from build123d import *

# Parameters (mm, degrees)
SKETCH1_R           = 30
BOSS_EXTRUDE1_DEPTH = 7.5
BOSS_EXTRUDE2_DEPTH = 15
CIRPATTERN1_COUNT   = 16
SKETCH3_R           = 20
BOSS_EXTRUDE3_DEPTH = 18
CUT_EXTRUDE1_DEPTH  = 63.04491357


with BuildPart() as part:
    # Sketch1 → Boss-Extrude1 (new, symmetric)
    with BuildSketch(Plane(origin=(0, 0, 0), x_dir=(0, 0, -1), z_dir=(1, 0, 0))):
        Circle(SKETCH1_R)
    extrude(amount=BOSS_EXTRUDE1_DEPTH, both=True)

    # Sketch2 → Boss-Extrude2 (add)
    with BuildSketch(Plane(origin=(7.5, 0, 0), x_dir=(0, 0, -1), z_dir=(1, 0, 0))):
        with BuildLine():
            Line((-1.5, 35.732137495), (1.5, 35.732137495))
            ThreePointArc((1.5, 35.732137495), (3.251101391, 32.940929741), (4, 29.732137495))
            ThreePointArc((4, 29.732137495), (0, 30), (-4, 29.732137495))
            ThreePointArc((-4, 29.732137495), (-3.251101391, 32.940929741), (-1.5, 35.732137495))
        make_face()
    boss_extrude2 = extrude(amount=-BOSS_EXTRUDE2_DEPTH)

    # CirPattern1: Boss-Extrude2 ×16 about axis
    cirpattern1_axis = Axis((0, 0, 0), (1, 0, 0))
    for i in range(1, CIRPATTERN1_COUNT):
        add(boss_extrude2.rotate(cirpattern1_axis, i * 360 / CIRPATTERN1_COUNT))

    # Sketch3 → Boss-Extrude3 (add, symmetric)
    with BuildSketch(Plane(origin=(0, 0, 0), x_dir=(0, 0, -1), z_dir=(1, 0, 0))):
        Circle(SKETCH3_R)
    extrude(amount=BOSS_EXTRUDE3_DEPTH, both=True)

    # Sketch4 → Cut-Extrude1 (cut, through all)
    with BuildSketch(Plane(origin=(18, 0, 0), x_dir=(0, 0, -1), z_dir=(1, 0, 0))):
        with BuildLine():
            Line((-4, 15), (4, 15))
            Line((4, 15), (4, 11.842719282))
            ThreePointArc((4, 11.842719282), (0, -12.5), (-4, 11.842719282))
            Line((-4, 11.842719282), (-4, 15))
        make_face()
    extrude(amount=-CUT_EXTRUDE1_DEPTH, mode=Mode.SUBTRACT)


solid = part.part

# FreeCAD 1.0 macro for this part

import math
import FreeCAD as App
import Part
import Sketcher
Q = App.Units.Quantity

doc = App.newDocument("Part")
body = doc.addObject("PartDesign::Body", "Body")

sketch1 = doc.addObject("Sketcher::SketchObject", "Sketch")
body.addObject(sketch1)
sketch1.AttachmentSupport = (doc.YZ_Plane, [""])
sketch1.MapMode = "FlatFace"
sketch1.addGeometry(Part.Circle(App.Vector(0, 0, 0), App.Vector(0, 0, 1), 30), False)
sketch1.addConstraint(Sketcher.Constraint("Coincident", 0, 3, -1, 1))
sketch1.addConstraint(Sketcher.Constraint("Diameter", 0, Q("60 mm")))
pad1 = doc.addObject("PartDesign::Pad", "Pad")
body.addObject(pad1)
pad1.Profile = sketch1
pad1.Length = 15
pad1.Midplane = True

sketch2 = doc.addObject("Sketcher::SketchObject", "Sketch001")
body.addObject(sketch2)
sketch2.AttachmentSupport = (doc.YZ_Plane, [""])
sketch2.MapMode = "FlatFace"
sketch2.AttachmentOffset = App.Placement(App.Vector(0, 0, 7.5), App.Rotation())
sketch2.addGeometry(Part.LineSegment(App.Vector(35.7, -1.5, 0), App.Vector(35.7, 1.5, 0)), False)
sketch2.addGeometry(Part.ArcOfCircle(Part.Circle(App.Vector(29.1, -6, 0), App.Vector(0, 0, 1), 10), math.radians(48), math.radians(86)), False)
sketch2.addGeometry(Part.ArcOfCircle(Part.Circle(App.Vector(0, 0, 0), App.Vector(0, 0, 1), 30), math.radians(-7.66), math.radians(7.66)), False)
sketch2.addGeometry(Part.ArcOfCircle(Part.Circle(App.Vector(29.1, 6, 0), App.Vector(0, 0, 1), 10), math.radians(-86), math.radians(-48)), False)
sketch2.addConstraint(Sketcher.Constraint("Coincident", 0, 2, 1, 1))
sketch2.addConstraint(Sketcher.Constraint("Coincident", 1, 2, 2, 2))
sketch2.addConstraint(Sketcher.Constraint("Coincident", 2, 1, 3, 1))
sketch2.addConstraint(Sketcher.Constraint("Coincident", 3, 2, 0, 1))
sketch2.addConstraint(Sketcher.Constraint("Vertical", 0))
sketch2.addConstraint(Sketcher.Constraint("Coincident", 2, 3, -1, 1))
sketch2.addConstraint(Sketcher.Constraint("Equal", 1, 3))
sketch2.addConstraint(Sketcher.Constraint("Symmetric", 1, 3, 3, 3, -1))
sketch2.addConstraint(Sketcher.Constraint("Radius", 1, Q("10 mm")))
sketch2.addConstraint(Sketcher.Constraint("Radius", 2, Q("30 mm")))
sketch2.addConstraint(Sketcher.Constraint("DistanceY", 0, 1, 0, 2, Q("3 mm")))
sketch2.addConstraint(Sketcher.Constraint("DistanceY", -1, 1, 1, 2, Q("4 mm")))
sketch2.addConstraint(Sketcher.Constraint("DistanceX", 1, 2, 0, 2, Q("6 mm")))
pad2 = doc.addObject("PartDesign::Pad", "Pad001")
body.addObject(pad2)
pad2.Profile = sketch2
pad2.Length = 15
pad2.Reversed = True
doc.recompute()

polarpattern = doc.addObject("PartDesign::PolarPattern", "PolarPattern")
body.addObject(polarpattern)
polarpattern.Originals = [pad2]
polarpattern.Axis = (doc.X_Axis, [""])
polarpattern.Angle = 360
polarpattern.Occurrences = 16
body.Tip = polarpattern

sketch3 = doc.addObject("Sketcher::SketchObject", "Sketch002")
body.addObject(sketch3)
sketch3.AttachmentSupport = (doc.YZ_Plane, [""])
sketch3.MapMode = "FlatFace"
sketch3.addGeometry(Part.Circle(App.Vector(0, 0, 0), App.Vector(0, 0, 1), 20), False)
sketch3.addConstraint(Sketcher.Constraint("Coincident", 0, 3, -1, 1))
sketch3.addConstraint(Sketcher.Constraint("Diameter", 0, Q("40 mm")))
pad3 = doc.addObject("PartDesign::Pad", "Pad002")
body.addObject(pad3)
pad3.Profile = sketch3
pad3.Length = 36
pad3.Midplane = True

sketch4 = doc.addObject("Sketcher::SketchObject", "Sketch003")
body.addObject(sketch4)
sketch4.AttachmentSupport = (doc.YZ_Plane, [""])
sketch4.MapMode = "FlatFace"
sketch4.AttachmentOffset = App.Placement(App.Vector(0, 0, 18), App.Rotation())
sketch4.addGeometry(Part.LineSegment(App.Vector(15, -4, 0), App.Vector(15, 4, 0)), False)
sketch4.addGeometry(Part.LineSegment(App.Vector(15, 4, 0), App.Vector(11.8, 4, 0)), False)
sketch4.addGeometry(Part.ArcOfCircle(Part.Circle(App.Vector(0, 0, 0), App.Vector(0, 0, 1), 12.5), math.radians(19), math.radians(341)), False)
sketch4.addGeometry(Part.LineSegment(App.Vector(11.8, -4, 0), App.Vector(15, -4, 0)), False)
sketch4.addConstraint(Sketcher.Constraint("Coincident", 0, 2, 1, 1))
sketch4.addConstraint(Sketcher.Constraint("Coincident", 1, 2, 2, 1))
sketch4.addConstraint(Sketcher.Constraint("Coincident", 2, 2, 3, 1))
sketch4.addConstraint(Sketcher.Constraint("Coincident", 3, 2, 0, 1))
sketch4.addConstraint(Sketcher.Constraint("Vertical", 0))
sketch4.addConstraint(Sketcher.Constraint("Horizontal", 1))
sketch4.addConstraint(Sketcher.Constraint("Horizontal", 3))
sketch4.addConstraint(Sketcher.Constraint("Coincident", 2, 3, -1, 1))
sketch4.addConstraint(Sketcher.Constraint("Vertical", 1, 2, 2, 2))
sketch4.addConstraint(Sketcher.Constraint("Radius", 2, Q("12.5 mm")))
sketch4.addConstraint(Sketcher.Constraint("DistanceY", 0, 1, 0, 2, Q("8 mm")))
sketch4.addConstraint(Sketcher.Constraint("DistanceX", -1, 1, 0, 2, Q("15 mm")))
pocket1 = doc.addObject("PartDesign::Pocket", "Pocket")
body.addObject(pocket1)
pocket1.Profile = sketch4
pocket1.Type = "ThroughAll"

doc.recompute()
